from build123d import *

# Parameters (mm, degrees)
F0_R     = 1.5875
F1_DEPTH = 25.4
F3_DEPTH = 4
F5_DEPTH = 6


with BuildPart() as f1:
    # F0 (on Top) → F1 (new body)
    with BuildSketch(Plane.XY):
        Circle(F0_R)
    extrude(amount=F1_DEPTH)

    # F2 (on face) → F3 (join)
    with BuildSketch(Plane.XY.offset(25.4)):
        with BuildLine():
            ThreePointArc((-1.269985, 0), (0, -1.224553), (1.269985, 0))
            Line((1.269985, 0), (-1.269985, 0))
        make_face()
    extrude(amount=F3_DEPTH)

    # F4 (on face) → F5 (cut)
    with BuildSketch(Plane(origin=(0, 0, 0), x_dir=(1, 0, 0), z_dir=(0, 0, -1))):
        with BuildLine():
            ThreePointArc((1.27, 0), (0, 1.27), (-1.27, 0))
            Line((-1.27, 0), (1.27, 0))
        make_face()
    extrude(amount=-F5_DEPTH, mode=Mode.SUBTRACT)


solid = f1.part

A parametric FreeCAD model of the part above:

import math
import FreeCAD as App
import Part
import Sketcher

V = App.Vector
Q = App.Units.Quantity

doc = App.newDocument("Part")
body = doc.addObject("PartDesign::Body", "Body")

# Sketch on XY plane
sketch1 = body.newObject("Sketcher::SketchObject", "Sketch")
sketch1.AttachmentSupport = (doc.getObject("XY_Plane"), [""])
sketch1.MapMode = "FlatFace"
sketch1.addGeometry(Part.Circle(V(0, 0, 0), V(0, 0, 1), 1.6), False)
sketch1.addConstraint(Sketcher.Constraint("Coincident", 0, 3, -1, 1))
sketch1.addConstraint(Sketcher.Constraint("Diameter", 0, Q("0.125 in")))
pad1 = body.newObject("PartDesign::Pad", "Pad")
pad1.Profile = sketch1
pad1.Length = Q("1 in")

# Sketch on XY plane
sketch2 = body.newObject("Sketcher::SketchObject", "Sketch001")
sketch2.AttachmentSupport = (doc.getObject("XY_Plane"), [""])
sketch2.MapMode = "FlatFace"
sketch2.AttachmentOffset = App.Placement(V(0, 0, 1 * 25.4), App.Rotation())
sketch2.addGeometry(Part.ArcOfCircle(Part.Circle(V(0, 0.046275, 0), V(0, 0, 1), 1.270828), math.radians(-177.913222), math.radians(-2.086778)), False)
sketch2.addGeometry(Part.LineSegment(V(1.269985, 0, 0), V(-1.269985, 0, 0)), False)
sketch2.addConstraint(Sketcher.Constraint("Coincident", 0, 1, 1, 2))
sketch2.addConstraint(Sketcher.Constraint("Coincident", 1, 1, 0, 2))
sketch2.addConstraint(Sketcher.Constraint("Horizontal", 1))
sketch2.addConstraint(Sketcher.Constraint("Symmetric", 0, 1, 1, 1, -1, 1))
sketch2.addConstraint(Sketcher.Constraint("Radius", 0, Q("1.270828 mm")))
sketch2.addConstraint(Sketcher.Constraint("DistanceX", 1, 2, 1, 1, Q("2.53997 mm")))
pad2 = body.newObject("PartDesign::Pad", "Pad001")
pad2.Profile = sketch2
pad2.Length = 4

# Sketch on XY plane
sketch3 = body.newObject("Sketcher::SketchObject", "Sketch002")
sketch3.AttachmentSupport = (doc.getObject("XY_Plane"), [""])
sketch3.MapMode = "FlatFace"
sketch3.addGeometry(Part.ArcOfCircle(Part.Circle(V(0, 0, 0), V(0, 0, 1), 1.3), math.radians(180), math.radians(360)), False)
sketch3.addGeometry(Part.LineSegment(V(-1.3, 0, 0), V(1.3, 0, 0)), False)
sketch3.addConstraint(Sketcher.Constraint("Coincident", 0, 1, 1, 1))
sketch3.addConstraint(Sketcher.Constraint("Coincident", 1, 2, 0, 2))
sketch3.addConstraint(Sketcher.Constraint("Horizontal", 1))
sketch3.addConstraint(Sketcher.Constraint("Coincident", 0, 3, -1, 1))
sketch3.addConstraint(Sketcher.Constraint("PointOnObject", 0, 1, -1))
sketch3.addConstraint(Sketcher.Constraint("Radius", 0, Q("0.05 in")))
pocket1 = body.newObject("PartDesign::Pocket", "Pocket")
pocket1.Profile = sketch3
pocket1.Length = 6
pocket1.Reversed = True

doc.recompute()
